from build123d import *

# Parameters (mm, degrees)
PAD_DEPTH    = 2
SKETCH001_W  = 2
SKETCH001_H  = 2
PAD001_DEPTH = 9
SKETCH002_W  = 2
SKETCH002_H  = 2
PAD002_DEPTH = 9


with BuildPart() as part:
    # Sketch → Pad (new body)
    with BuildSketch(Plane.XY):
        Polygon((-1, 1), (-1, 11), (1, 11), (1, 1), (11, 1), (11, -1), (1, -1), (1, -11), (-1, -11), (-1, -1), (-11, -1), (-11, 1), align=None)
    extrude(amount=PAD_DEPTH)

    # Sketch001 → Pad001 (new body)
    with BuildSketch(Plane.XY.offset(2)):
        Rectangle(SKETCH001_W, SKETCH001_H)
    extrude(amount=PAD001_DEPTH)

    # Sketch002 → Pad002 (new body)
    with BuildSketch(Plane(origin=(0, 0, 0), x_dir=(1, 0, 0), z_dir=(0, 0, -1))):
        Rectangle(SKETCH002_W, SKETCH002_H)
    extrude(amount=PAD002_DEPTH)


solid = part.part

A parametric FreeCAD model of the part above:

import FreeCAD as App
import Part
import Sketcher

V = App.Vector
Q = App.Units.Quantity

doc = App.newDocument("Part")
body = doc.addObject("PartDesign::Body", "Body")

sketch1 = doc.addObject("Sketcher::SketchObject", "Sketch")
body.addObject(sketch1)
sketch1.AttachmentSupport = (doc.XY_Plane, [""])
sketch1.MapMode = "FlatFace"
sketch1.addGeometry(Part.LineSegment(V(-1, 11, 0), V(-1, 1, 0)), False)
sketch1.addGeometry(Part.LineSegment(V(-1, 1, 0), V(-11, 1, 0)), False)
sketch1.addGeometry(Part.LineSegment(V(-11, 1, 0), V(-11, -1, 0)), False)
sketch1.addGeometry(Part.LineSegment(V(-11, -1, 0), V(-1, -1, 0)), False)
sketch1.addGeometry(Part.LineSegment(V(-1, -1, 0), V(-1, -11, 0)), False)
sketch1.addGeometry(Part.LineSegment(V(-1, -11, 0), V(1, -11, 0)), False)
sketch1.addGeometry(Part.LineSegment(V(1, -11, 0), V(1, -1, 0)), False)
sketch1.addGeometry(Part.LineSegment(V(1, -1, 0), V(11, -1, 0)), False)
sketch1.addGeometry(Part.LineSegment(V(11, -1, 0), V(11, 1, 0)), False)
sketch1.addGeometry(Part.LineSegment(V(11, 1, 0), V(1, 1, 0)), False)
sketch1.addGeometry(Part.LineSegment(V(1, 1, 0), V(1, 11, 0)), False)
sketch1.addGeometry(Part.LineSegment(V(1, 11, 0), V(-1, 11, 0)), False)
sketch1.addConstraint(Sketcher.Constraint("Coincident", 0, 2, 1, 1))
sketch1.addConstraint(Sketcher.Constraint("Coincident", 1, 2, 2, 1))
sketch1.addConstraint(Sketcher.Constraint("Coincident", 2, 2, 3, 1))
sketch1.addConstraint(Sketcher.Constraint("Coincident", 3, 2, 4, 1))
sketch1.addConstraint(Sketcher.Constraint("Coincident", 4, 2, 5, 1))
sketch1.addConstraint(Sketcher.Constraint("Coincident", 5, 2, 6, 1))
sketch1.addConstraint(Sketcher.Constraint("Coincident", 6, 2, 7, 1))
sketch1.addConstraint(Sketcher.Constraint("Coincident", 7, 2, 8, 1))
sketch1.addConstraint(Sketcher.Constraint("Coincident", 8, 2, 9, 1))
sketch1.addConstraint(Sketcher.Constraint("Coincident", 9, 2, 10, 1))
sketch1.addConstraint(Sketcher.Constraint("Coincident", 10, 2, 11, 1))
sketch1.addConstraint(Sketcher.Constraint("Coincident", 11, 2, 0, 1))
sketch1.addConstraint(Sketcher.Constraint("Vertical", 0))
sketch1.addConstraint(Sketcher.Constraint("Horizontal", 1))
sketch1.addConstraint(Sketcher.Constraint("Vertical", 2))
sketch1.addConstraint(Sketcher.Constraint("Horizontal", 3))
sketch1.addConstraint(Sketcher.Constraint("Vertical", 4))
sketch1.addConstraint(Sketcher.Constraint("Horizontal", 5))
sketch1.addConstraint(Sketcher.Constraint("Vertical", 6))
sketch1.addConstraint(Sketcher.Constraint("Horizontal", 7))
sketch1.addConstraint(Sketcher.Constraint("Vertical", 8))
sketch1.addConstraint(Sketcher.Constraint("Horizontal", 9))
sketch1.addConstraint(Sketcher.Constraint("Vertical", 10))
sketch1.addConstraint(Sketcher.Constraint("Horizontal", 11))
sketch1.addConstraint(Sketcher.Constraint("Symmetric", 0, 2, 6, 2, -1, 1))
sketch1.addConstraint(Sketcher.Constraint("Symmetric", 2, 2, 8, 2, -1, 1))
sketch1.addConstraint(Sketcher.Constraint("Symmetric", 4, 2, 10, 2, -1, 1))
sketch1.addConstraint(Sketcher.Constraint("Symmetric", 3, 2, 6, 2, -2))
sketch1.addConstraint(Sketcher.Constraint("Equal", 9, 0))
sketch1.addConstraint(Sketcher.Constraint("Equal", 11, 2))
sketch1.addConstraint(Sketcher.Constraint("DistanceX", 1, 2, 1, 1, Q("10 mm")))
sketch1.addConstraint(Sketcher.Constraint("DistanceX", 5, 1, 5, 2, Q("2 mm")))
pad1 = doc.addObject("PartDesign::Pad", "Pad")
body.addObject(pad1)
pad1.Profile = sketch1
pad1.Length = 2

sketch2 = doc.addObject("Sketcher::SketchObject", "Sketch001")
body.addObject(sketch2)
sketch2.AttachmentSupport = (doc.XY_Plane, [""])
sketch2.MapMode = "FlatFace"
sketch2.AttachmentOffset = App.Placement(V(0, 0, 2), App.Rotation())
sketch2.addGeometry(Part.LineSegment(V(-1, 1, 0), V(-1, -1, 0)), False)
sketch2.addGeometry(Part.LineSegment(V(-1, -1, 0), V(1, -1, 0)), False)
sketch2.addGeometry(Part.LineSegment(V(1, -1, 0), V(1, 1, 0)), False)
sketch2.addGeometry(Part.LineSegment(V(1, 1, 0), V(-1, 1, 0)), False)
sketch2.addConstraint(Sketcher.Constraint("Coincident", 0, 2, 1, 1))
sketch2.addConstraint(Sketcher.Constraint("Coincident", 1, 2, 2, 1))
sketch2.addConstraint(Sketcher.Constraint("Coincident", 2, 2, 3, 1))
sketch2.addConstraint(Sketcher.Constraint("Coincident", 3, 2, 0, 1))
sketch2.addConstraint(Sketcher.Constraint("Vertical", 0))
sketch2.addConstraint(Sketcher.Constraint("Horizontal", 1))
sketch2.addConstraint(Sketcher.Constraint("Vertical", 2))
sketch2.addConstraint(Sketcher.Constraint("Horizontal", 3))
sketch2.addConstraint(Sketcher.Constraint("Symmetric", 0, 2, 2, 2, -1, 1))
sketch2.addConstraint(Sketcher.Constraint("Equal", 3, 0))
sketch2.addConstraint(Sketcher.Constraint("DistanceX", 1, 1, 1, 2, Q("2 mm")))
pad2 = doc.addObject("PartDesign::Pad", "Pad001")
body.addObject(pad2)
pad2.Profile = sketch2
pad2.Length = 9

sketch3 = doc.addObject("Sketcher::SketchObject", "Sketch002")
body.addObject(sketch3)
sketch3.AttachmentSupport = (doc.XY_Plane, [""])
sketch3.MapMode = "FlatFace"
sketch3.addGeometry(Part.LineSegment(V(-1, -1, 0), V(-1, 1, 0)), False)
sketch3.addGeometry(Part.LineSegment(V(-1, 1, 0), V(1, 1, 0)), False)
sketch3.addGeometry(Part.LineSegment(V(1, 1, 0), V(1, -1, 0)), False)
sketch3.addGeometry(Part.LineSegment(V(1, -1, 0), V(-1, -1, 0)), False)
sketch3.addConstraint(Sketcher.Constraint("Coincident", 0, 2, 1, 1))
sketch3.addConstraint(Sketcher.Constraint("Coincident", 1, 2, 2, 1))
sketch3.addConstraint(Sketcher.Constraint("Coincident", 2, 2, 3, 1))
sketch3.addConstraint(Sketcher.Constraint("Coincident", 3, 2, 0, 1))
sketch3.addConstraint(Sketcher.Constraint("Vertical", 0))
sketch3.addConstraint(Sketcher.Constraint("Horizontal", 1))
sketch3.addConstraint(Sketcher.Constraint("Vertical", 2))
sketch3.addConstraint(Sketcher.Constraint("Horizontal", 3))
sketch3.addConstraint(Sketcher.Constraint("Symmetric", 0, 2, 2, 2, -1, 1))
sketch3.addConstraint(Sketcher.Constraint("Equal", 3, 0))
sketch3.addConstraint(Sketcher.Constraint("DistanceX", 1, 1, 1, 2, Q("2 mm")))
pad3 = doc.addObject("PartDesign::Pad", "Pad002")
body.addObject(pad3)
pad3.Profile = sketch3
pad3.Length = 9
pad3.Reversed = True

doc.recompute()
